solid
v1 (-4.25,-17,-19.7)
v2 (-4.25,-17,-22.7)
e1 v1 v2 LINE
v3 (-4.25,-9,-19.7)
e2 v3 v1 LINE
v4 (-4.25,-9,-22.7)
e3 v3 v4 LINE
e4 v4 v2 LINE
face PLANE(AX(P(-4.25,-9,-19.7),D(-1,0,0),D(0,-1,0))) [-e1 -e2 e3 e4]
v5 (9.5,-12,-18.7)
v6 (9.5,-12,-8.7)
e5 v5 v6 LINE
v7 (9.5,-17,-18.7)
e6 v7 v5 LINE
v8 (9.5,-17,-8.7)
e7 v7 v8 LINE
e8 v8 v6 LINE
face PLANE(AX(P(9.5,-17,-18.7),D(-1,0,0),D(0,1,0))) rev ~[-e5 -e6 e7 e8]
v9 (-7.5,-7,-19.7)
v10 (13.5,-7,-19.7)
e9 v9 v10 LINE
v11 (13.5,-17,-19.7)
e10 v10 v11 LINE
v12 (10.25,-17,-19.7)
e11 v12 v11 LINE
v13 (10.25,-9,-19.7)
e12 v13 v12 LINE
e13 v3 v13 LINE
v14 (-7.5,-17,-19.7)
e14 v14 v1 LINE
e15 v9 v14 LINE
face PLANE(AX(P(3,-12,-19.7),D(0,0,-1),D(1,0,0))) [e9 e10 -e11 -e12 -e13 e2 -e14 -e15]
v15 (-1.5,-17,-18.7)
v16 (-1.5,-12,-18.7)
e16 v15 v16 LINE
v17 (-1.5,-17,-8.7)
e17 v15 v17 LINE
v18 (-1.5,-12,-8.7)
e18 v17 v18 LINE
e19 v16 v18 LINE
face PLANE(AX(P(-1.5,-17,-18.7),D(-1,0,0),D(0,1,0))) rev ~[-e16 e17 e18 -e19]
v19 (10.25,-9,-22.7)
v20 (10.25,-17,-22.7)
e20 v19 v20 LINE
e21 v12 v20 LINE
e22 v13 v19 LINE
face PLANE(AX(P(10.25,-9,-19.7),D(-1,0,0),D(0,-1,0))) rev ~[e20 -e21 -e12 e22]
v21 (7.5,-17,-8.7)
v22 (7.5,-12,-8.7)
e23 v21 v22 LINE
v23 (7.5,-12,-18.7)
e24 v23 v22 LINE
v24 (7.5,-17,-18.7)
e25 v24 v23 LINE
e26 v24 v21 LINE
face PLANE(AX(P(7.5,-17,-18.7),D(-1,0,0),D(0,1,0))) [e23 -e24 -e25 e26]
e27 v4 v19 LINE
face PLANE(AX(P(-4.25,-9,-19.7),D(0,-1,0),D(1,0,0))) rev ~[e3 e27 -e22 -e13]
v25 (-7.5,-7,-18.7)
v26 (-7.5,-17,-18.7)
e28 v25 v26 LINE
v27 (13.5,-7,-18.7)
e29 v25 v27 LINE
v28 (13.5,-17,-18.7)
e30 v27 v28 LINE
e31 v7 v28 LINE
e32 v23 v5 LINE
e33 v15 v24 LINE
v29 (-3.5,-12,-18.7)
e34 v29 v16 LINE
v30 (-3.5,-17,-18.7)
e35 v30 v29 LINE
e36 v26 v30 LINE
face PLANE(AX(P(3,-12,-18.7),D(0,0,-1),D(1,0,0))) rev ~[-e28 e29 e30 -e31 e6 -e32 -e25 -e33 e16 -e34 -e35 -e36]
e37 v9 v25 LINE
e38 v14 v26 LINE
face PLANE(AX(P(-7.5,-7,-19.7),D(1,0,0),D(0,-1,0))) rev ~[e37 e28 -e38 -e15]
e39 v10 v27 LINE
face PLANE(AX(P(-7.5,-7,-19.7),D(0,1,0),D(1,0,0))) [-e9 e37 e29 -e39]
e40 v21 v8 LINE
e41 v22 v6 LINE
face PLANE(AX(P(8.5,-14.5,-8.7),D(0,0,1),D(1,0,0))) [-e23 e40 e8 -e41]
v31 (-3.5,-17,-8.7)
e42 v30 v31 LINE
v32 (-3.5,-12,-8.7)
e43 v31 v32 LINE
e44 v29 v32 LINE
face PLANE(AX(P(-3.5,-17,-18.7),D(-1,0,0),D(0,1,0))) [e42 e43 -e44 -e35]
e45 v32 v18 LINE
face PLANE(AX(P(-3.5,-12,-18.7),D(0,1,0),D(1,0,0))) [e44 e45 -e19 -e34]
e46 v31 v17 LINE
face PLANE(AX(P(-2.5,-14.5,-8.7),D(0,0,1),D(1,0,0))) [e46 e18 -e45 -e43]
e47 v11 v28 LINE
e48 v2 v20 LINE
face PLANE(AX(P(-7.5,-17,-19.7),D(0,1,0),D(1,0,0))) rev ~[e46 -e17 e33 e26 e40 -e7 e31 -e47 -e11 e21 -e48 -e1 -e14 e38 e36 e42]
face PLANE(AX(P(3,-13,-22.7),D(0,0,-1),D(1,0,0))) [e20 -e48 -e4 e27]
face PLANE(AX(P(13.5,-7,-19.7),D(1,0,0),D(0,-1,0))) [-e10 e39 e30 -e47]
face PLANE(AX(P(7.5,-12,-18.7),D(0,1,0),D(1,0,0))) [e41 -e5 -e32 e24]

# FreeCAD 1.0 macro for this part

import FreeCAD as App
import Part
import Sketcher

V = App.Vector

doc = App.newDocument("Part")
body = doc.addObject("PartDesign::Body", "Body")

# Sketch on XY plane
sketch1 = doc.addObject("Sketcher::SketchObject", "Sketch")
body.addObject(sketch1)
sketch1.AttachmentSupport = (doc.XY_Plane, [""])
sketch1.MapMode = "FlatFace"
sketch1.addGeometry([
    Part.LineSegment(V(-7, 4, 0), V(-7, -4, 0)),
    Part.LineSegment(V(-7, -4, 0), V(7, -4, 0)),
    Part.LineSegment(V(7, -4, 0), V(7, 4, 0)),
    Part.LineSegment(V(7, 4, 0), V(-7, 4, 0)),
], False)
sketch1.addConstraint([
    Sketcher.Constraint("Coincident", 0, 2, 1, 1),
    Sketcher.Constraint("Coincident", 1, 2, 2, 1),
    Sketcher.Constraint("Coincident", 2, 2, 3, 1),
    Sketcher.Constraint("Coincident", 3, 2, 0, 1),
    Sketcher.Constraint("Vertical", 0),
    Sketcher.Constraint("Horizontal", 1),
    Sketcher.Constraint("Vertical", 2),
    Sketcher.Constraint("Horizontal", 3),
    Sketcher.Constraint("Symmetric", 0, 2, 2, 2, -1, 1),
    Sketcher.Constraint("DistanceY", 0, 2, 0, 1, 8.0),
    Sketcher.Constraint("DistanceX", 1, 1, 1, 2, 14.5),
])
pad1 = doc.addObject("PartDesign::Pad", "Pad")
body.addObject(pad1)
pad1.Profile = sketch1
pad1.Length = 3

# Sketch on XY plane
sketch2 = doc.addObject("Sketcher::SketchObject", "Sketch001")
body.addObject(sketch2)
sketch2.AttachmentSupport = (doc.XY_Plane, [""])
sketch2.MapMode = "FlatFace"
sketch2.addGeometry([
    Part.LineSegment(V(-10, 4, 0), V(-10, -6, 0)),
    Part.LineSegment(V(-10, -6, 0), V(10, -6, 0)),
    Part.LineSegment(V(10, -6, 0), V(10, 4, 0)),
    Part.LineSegment(V(10, 4, 0), V(-10, 4, 0)),
], False)
sketch2.addConstraint([
    Sketcher.Constraint("Coincident", 0, 2, 1, 1),
    Sketcher.Constraint("Coincident", 1, 2, 2, 1),
    Sketcher.Constraint("Coincident", 2, 2, 3, 1),
    Sketcher.Constraint("Coincident", 3, 2, 0, 1),
    Sketcher.Constraint("Vertical", 0),
    Sketcher.Constraint("Horizontal", 1),
    Sketcher.Constraint("Vertical", 2),
    Sketcher.Constraint("Horizontal", 3),
    Sketcher.Constraint("DistanceX", 1, 1, 1, 2, 21.0),
    Sketcher.Constraint("DistanceY", 0, 2, 0, 1, 10.0),
    Sketcher.Constraint("DistanceY", 0, 2, -1, 1, 6.0),
    Sketcher.Constraint("DistanceX", 0, 2, -1, 1, 10.5),
])
pad2 = doc.addObject("PartDesign::Pad", "Pad001")
body.addObject(pad2)
pad2.Profile = sketch2
pad2.Length = 1
pad2.Reversed = True

# Sketch on XY plane
sketch3 = doc.addObject("Sketcher::SketchObject", "Sketch002")
body.addObject(sketch3)
sketch3.AttachmentSupport = (doc.XY_Plane, [""])
sketch3.MapMode = "FlatFace"
sketch3.AttachmentOffset = App.Placement(V(0, 0, -1), App.Rotation())
sketch3.addGeometry([
    Part.LineSegment(V(-6.5, -1, 0), V(-6.5, 4, 0)),  # 0
    Part.LineSegment(V(-6.5, 4, 0), V(-4.5, 4, 0)),  # 1
    Part.LineSegment(V(-4.5, 4, 0), V(-4.5, -1, 0)),  # 2
    Part.LineSegment(V(-4.5, -1, 0), V(-6.5, -1, 0)),  # 3
    Part.LineSegment(V(4.5, -1, 0), V(4.5, 4, 0)),  # 4
    Part.LineSegment(V(4.5, 4, 0), V(6.5, 4, 0)),  # 5
    Part.LineSegment(V(6.5, 4, 0), V(6.5, -1, 0)),  # 6
    Part.LineSegment(V(6.5, -1, 0), V(4.5, -1, 0)),  # 7
], False)
sketch3.addConstraint([
    Sketcher.Constraint("Coincident", 0, 2, 1, 1),
    Sketcher.Constraint("Coincident", 1, 2, 2, 1),
    Sketcher.Constraint("Coincident", 2, 2, 3, 1),
    Sketcher.Constraint("Coincident", 3, 2, 0, 1),
    Sketcher.Constraint("Coincident", 4, 2, 5, 1),
    Sketcher.Constraint("Coincident", 5, 2, 6, 1),
    Sketcher.Constraint("Coincident", 6, 2, 7, 1),
    Sketcher.Constraint("Coincident", 7, 2, 4, 1),
    Sketcher.Constraint("Vertical", 0),
    Sketcher.Constraint("Horizontal", 1),
    Sketcher.Constraint("Vertical", 2),
    Sketcher.Constraint("Horizontal", 3),
    Sketcher.Constraint("Vertical", 4),
    Sketcher.Constraint("Horizontal", 5),
    Sketcher.Constraint("Vertical", 6),
    Sketcher.Constraint("Horizontal", 7),
    Sketcher.Constraint("Symmetric", 1, 2, 4, 2, -2),
    Sketcher.Constraint("Symmetric", 3, 2, 6, 2, -2),
    Sketcher.Constraint("DistanceX", 1, 1, 1, 2, 2.0),
    Sketcher.Constraint("DistanceY", 0, 1, 0, 2, 5.0),
    Sketcher.Constraint("DistanceY", -1, 1, 0, 2, 4.0),
    Sketcher.Constraint("DistanceX", 1, 2, 4, 2, 9.0),
])
pad3 = doc.addObject("PartDesign::Pad", "Pad002")
body.addObject(pad3)
pad3.Profile = sketch3
pad3.Length = 10
pad3.Reversed = True
body2 = doc.addObject("PartDesign::Body", "Body001")
doc.recompute()

body.Placement = App.Placement(V(3, -13, -19.7), App.Rotation(V(1, 0, 0), 180))
boolean = doc.addObject("PartDesign::Boolean", "Boolean")
body2.addObject(boolean)
boolean.Type = "Fuse"
boolean.addObjects([body])

doc.recompute()
